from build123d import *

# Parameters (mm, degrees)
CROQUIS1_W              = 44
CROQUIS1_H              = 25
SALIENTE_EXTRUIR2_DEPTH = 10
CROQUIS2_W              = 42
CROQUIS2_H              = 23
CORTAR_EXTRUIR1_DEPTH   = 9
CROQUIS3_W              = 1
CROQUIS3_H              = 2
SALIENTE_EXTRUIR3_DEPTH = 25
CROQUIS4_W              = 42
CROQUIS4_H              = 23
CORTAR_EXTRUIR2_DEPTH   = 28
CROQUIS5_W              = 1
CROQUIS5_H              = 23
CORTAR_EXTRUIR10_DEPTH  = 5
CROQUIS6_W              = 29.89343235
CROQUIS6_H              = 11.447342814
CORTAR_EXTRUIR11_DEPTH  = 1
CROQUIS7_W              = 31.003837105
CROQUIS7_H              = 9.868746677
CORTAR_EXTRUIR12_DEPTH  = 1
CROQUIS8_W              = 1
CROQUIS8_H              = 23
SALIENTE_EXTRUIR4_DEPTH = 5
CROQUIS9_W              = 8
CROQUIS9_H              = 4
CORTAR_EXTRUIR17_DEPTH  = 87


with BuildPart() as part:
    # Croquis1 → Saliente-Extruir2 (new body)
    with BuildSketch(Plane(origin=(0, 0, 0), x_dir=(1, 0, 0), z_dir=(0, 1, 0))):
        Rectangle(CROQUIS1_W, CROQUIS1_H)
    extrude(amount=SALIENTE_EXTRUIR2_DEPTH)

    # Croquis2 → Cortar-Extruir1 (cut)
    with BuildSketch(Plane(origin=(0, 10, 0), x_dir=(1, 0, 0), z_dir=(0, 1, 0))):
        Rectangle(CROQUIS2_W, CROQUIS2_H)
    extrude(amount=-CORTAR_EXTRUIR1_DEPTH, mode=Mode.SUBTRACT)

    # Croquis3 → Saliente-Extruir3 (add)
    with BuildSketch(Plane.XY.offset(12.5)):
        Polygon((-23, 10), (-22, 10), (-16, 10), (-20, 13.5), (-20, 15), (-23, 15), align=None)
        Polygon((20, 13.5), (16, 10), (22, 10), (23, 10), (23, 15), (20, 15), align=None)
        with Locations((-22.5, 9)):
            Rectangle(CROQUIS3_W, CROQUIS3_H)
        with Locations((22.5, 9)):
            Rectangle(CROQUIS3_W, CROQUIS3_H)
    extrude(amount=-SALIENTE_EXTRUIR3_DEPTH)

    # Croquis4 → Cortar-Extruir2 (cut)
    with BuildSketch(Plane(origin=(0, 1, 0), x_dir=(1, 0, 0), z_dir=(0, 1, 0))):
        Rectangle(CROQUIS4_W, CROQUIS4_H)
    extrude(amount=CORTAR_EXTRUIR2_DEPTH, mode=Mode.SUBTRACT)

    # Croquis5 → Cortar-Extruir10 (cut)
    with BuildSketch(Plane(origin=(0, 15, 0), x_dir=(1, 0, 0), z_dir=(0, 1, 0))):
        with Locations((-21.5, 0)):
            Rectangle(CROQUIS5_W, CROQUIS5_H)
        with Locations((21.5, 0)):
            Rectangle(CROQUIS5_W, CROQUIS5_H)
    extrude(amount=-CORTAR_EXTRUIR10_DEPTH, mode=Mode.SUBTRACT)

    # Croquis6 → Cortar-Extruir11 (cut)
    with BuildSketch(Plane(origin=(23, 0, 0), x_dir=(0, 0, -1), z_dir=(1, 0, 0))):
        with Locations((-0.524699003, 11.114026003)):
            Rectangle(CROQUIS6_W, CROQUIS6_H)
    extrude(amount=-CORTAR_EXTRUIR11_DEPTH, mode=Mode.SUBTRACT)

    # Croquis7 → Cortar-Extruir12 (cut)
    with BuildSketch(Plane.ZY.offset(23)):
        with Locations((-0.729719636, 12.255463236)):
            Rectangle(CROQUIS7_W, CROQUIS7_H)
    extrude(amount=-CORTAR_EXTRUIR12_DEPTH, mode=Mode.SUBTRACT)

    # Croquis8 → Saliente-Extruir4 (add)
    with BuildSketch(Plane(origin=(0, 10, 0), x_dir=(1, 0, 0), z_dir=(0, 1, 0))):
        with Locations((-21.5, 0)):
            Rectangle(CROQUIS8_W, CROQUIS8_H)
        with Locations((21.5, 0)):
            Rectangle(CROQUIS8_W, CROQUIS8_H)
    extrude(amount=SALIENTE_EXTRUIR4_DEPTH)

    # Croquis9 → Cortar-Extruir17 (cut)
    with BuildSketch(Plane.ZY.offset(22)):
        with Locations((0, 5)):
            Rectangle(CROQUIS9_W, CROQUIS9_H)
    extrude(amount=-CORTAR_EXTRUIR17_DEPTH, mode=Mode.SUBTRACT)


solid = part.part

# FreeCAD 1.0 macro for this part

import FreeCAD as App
import Part
import Sketcher

doc = App.newDocument("Part")
body = doc.addObject("PartDesign::Body", "Body")

# Sketch on XZ plane
sketch1 = body.newObject("Sketcher::SketchObject", "Sketch")
sketch1.AttachmentSupport = (doc.getObject("XZ_Plane"), [""])
sketch1.MapMode = "FlatFace"
sketch1.addGeometry([
    Part.LineSegment(App.Vector(-22, -12, 0), App.Vector(-22, 12, 0)),
    Part.LineSegment(App.Vector(-22, 12, 0), App.Vector(22, 12, 0)),
    Part.LineSegment(App.Vector(22, 12, 0), App.Vector(22, -12, 0)),
    Part.LineSegment(App.Vector(22, -12, 0), App.Vector(-22, -12, 0)),
], False)
sketch1.addConstraint([
    Sketcher.Constraint("Coincident", 0, 2, 1, 1),
    Sketcher.Constraint("Coincident", 1, 2, 2, 1),
    Sketcher.Constraint("Coincident", 2, 2, 3, 1),
    Sketcher.Constraint("Coincident", 3, 2, 0, 1),
    Sketcher.Constraint("Vertical", 0),
    Sketcher.Constraint("Horizontal", 1),
    Sketcher.Constraint("Vertical", 2),
    Sketcher.Constraint("Horizontal", 3),
    Sketcher.Constraint("Symmetric", 0, 2, 2, 2, -1, 1),
    Sketcher.Constraint("DistanceX", 1, 1, 1, 2, 44.0),
    Sketcher.Constraint("DistanceY", 0, 1, 0, 2, 25.0),
])
pad1 = body.newObject("PartDesign::Pad", "Pad")
pad1.Profile = sketch1
pad1.Length = 10
pad1.Reversed = True

# Sketch on XZ plane
sketch2 = body.newObject("Sketcher::SketchObject", "Sketch001")
sketch2.AttachmentSupport = (doc.getObject("XZ_Plane"), [""])
sketch2.MapMode = "FlatFace"
sketch2.AttachmentOffset = App.Placement(App.Vector(0, 0, -10), App.Rotation())
sketch2.addGeometry([
    Part.LineSegment(App.Vector(-21, -12, 0), App.Vector(-21, 12, 0)),
    Part.LineSegment(App.Vector(-21, 12, 0), App.Vector(21, 12, 0)),
    Part.LineSegment(App.Vector(21, 12, 0), App.Vector(21, -12, 0)),
    Part.LineSegment(App.Vector(21, -12, 0), App.Vector(-21, -12, 0)),
], False)
sketch2.addConstraint([
    Sketcher.Constraint("Coincident", 0, 2, 1, 1),
    Sketcher.Constraint("Coincident", 1, 2, 2, 1),
    Sketcher.Constraint("Coincident", 2, 2, 3, 1),
    Sketcher.Constraint("Coincident", 3, 2, 0, 1),
    Sketcher.Constraint("Vertical", 0),
    Sketcher.Constraint("Horizontal", 1),
    Sketcher.Constraint("Vertical", 2),
    Sketcher.Constraint("Horizontal", 3),
    Sketcher.Constraint("Symmetric", 0, 2, 2, 2, -1, 1),
    Sketcher.Constraint("DistanceX", 1, 1, 1, 2, 42.0),
    Sketcher.Constraint("DistanceY", 0, 1, 0, 2, 23.0),
])
pocket1 = body.newObject("PartDesign::Pocket", "Pocket")
pocket1.Profile = sketch2
pocket1.Length = 9
pocket1.Reversed = True

# Sketch on XY plane
sketch3 = body.newObject("Sketcher::SketchObject", "Sketch002")
sketch3.AttachmentSupport = (doc.getObject("XY_Plane"), [""])
sketch3.MapMode = "FlatFace"
sketch3.AttachmentOffset = App.Placement(App.Vector(0, 0, 12.5), App.Rotation())
sketch3.addGeometry([
    Part.LineSegment(App.Vector(-22, 10, 0), App.Vector(-16, 10, 0)),  # 0
    Part.LineSegment(App.Vector(-16, 10, 0), App.Vector(-20, 13.5, 0)),  # 1
    Part.LineSegment(App.Vector(-20, 13.5, 0), App.Vector(-20, 15, 0)),  # 2
    Part.LineSegment(App.Vector(-20, 15, 0), App.Vector(-23, 15, 0)),  # 3
    Part.LineSegment(App.Vector(-23, 15, 0), App.Vector(-23, 8, 0)),  # 4
    Part.LineSegment(App.Vector(-23, 8, 0), App.Vector(-22, 8, 0)),  # 5
    Part.LineSegment(App.Vector(-22, 8, 0), App.Vector(-22, 10, 0)),  # 6
    Part.LineSegment(App.Vector(20, 13.5, 0), App.Vector(16, 10, 0)),  # 7
    Part.LineSegment(App.Vector(16, 10, 0), App.Vector(22, 10, 0)),  # 8
    Part.LineSegment(App.Vector(22, 10, 0), App.Vector(22, 8, 0)),  # 9
    Part.LineSegment(App.Vector(22, 8, 0), App.Vector(23, 8, 0)),  # 10
    Part.LineSegment(App.Vector(23, 8, 0), App.Vector(23, 15, 0)),  # 11
    Part.LineSegment(App.Vector(23, 15, 0), App.Vector(20, 15, 0)),  # 12
    Part.LineSegment(App.Vector(20, 15, 0), App.Vector(20, 13.5, 0)),  # 13
], False)
sketch3.addConstraint([
    Sketcher.Constraint("Coincident", 0, 2, 1, 1),
    Sketcher.Constraint("Coincident", 1, 2, 2, 1),
    Sketcher.Constraint("Coincident", 2, 2, 3, 1),
    Sketcher.Constraint("Coincident", 3, 2, 4, 1),
    Sketcher.Constraint("Coincident", 4, 2, 5, 1),
    Sketcher.Constraint("Coincident", 5, 2, 6, 1),
    Sketcher.Constraint("Coincident", 6, 2, 0, 1),
    Sketcher.Constraint("Coincident", 7, 2, 8, 1),
    Sketcher.Constraint("Coincident", 8, 2, 9, 1),
    Sketcher.Constraint("Coincident", 9, 2, 10, 1),
    Sketcher.Constraint("Coincident", 10, 2, 11, 1),
    Sketcher.Constraint("Coincident", 11, 2, 12, 1),
    Sketcher.Constraint("Coincident", 12, 2, 13, 1),
    Sketcher.Constraint("Coincident", 13, 2, 7, 1),
    Sketcher.Constraint("Horizontal", 0),
    Sketcher.Constraint("Vertical", 2),
    Sketcher.Constraint("Horizontal", 3),
    Sketcher.Constraint("Vertical", 4),
    Sketcher.Constraint("Horizontal", 5),
    Sketcher.Constraint("Vertical", 6),
    Sketcher.Constraint("Horizontal", 8),
    Sketcher.Constraint("Vertical", 9),
    Sketcher.Constraint("Horizontal", 10),
    Sketcher.Constraint("Vertical", 11),
    Sketcher.Constraint("Horizontal", 12),
    Sketcher.Constraint("Vertical", 13),
    Sketcher.Constraint("Symmetric", 0, 2, 7, 2, -2),
    Sketcher.Constraint("Symmetric", 5, 2, 9, 2, -2),
    Sketcher.Constraint("Symmetric", 3, 2, 11, 2, -2),
    Sketcher.Constraint("Symmetric", 1, 2, 13, 2, -2),
    Sketcher.Constraint("DistanceX", 0, 1, 0, 2, 6.0),
    Sketcher.Constraint("DistanceX", 3, 2, 3, 1, 3.0),
    Sketcher.Constraint("DistanceX", 5, 1, 5, 2, 1.0),
    Sketcher.Constraint("DistanceY", 4, 2, 4, 1, 7.0),
    Sketcher.Constraint("DistanceY", 6, 1, 6, 2, 2.0),
    Sketcher.Constraint("DistanceY", 2, 1, 2, 2, 1.5),
    Sketcher.Constraint("DistanceX", 0, 2, -1, 1, 16.0),
    Sketcher.Constraint("DistanceY", -1, 1, 0, 2, 10.0),
])
pad2 = body.newObject("PartDesign::Pad", "Pad001")
pad2.Profile = sketch3
pad2.Length = 25
pad2.Reversed = True

# Sketch on XZ plane
sketch4 = body.newObject("Sketcher::SketchObject", "Sketch003")
sketch4.AttachmentSupport = (doc.getObject("XZ_Plane"), [""])
sketch4.MapMode = "FlatFace"
sketch4.AttachmentOffset = App.Placement(App.Vector(0, 0, -1), App.Rotation())
sketch4.addGeometry([
    Part.LineSegment(App.Vector(-21, -12, 0), App.Vector(-21, 12, 0)),
    Part.LineSegment(App.Vector(-21, 12, 0), App.Vector(21, 12, 0)),
    Part.LineSegment(App.Vector(21, 12, 0), App.Vector(21, -12, 0)),
    Part.LineSegment(App.Vector(21, -12, 0), App.Vector(-21, -12, 0)),
], False)
sketch4.addConstraint([
    Sketcher.Constraint("Coincident", 0, 2, 1, 1),
    Sketcher.Constraint("Coincident", 1, 2, 2, 1),
    Sketcher.Constraint("Coincident", 2, 2, 3, 1),
    Sketcher.Constraint("Coincident", 3, 2, 0, 1),
    Sketcher.Constraint("Vertical", 0),
    Sketcher.Constraint("Horizontal", 1),
    Sketcher.Constraint("Vertical", 2),
    Sketcher.Constraint("Horizontal", 3),
    Sketcher.Constraint("Symmetric", 0, 2, 2, 2, -1, 1),
    Sketcher.Constraint("DistanceX", 1, 1, 1, 2, 42.0),
    Sketcher.Constraint("DistanceY", 0, 1, 0, 2, 23.0),
])
pocket2 = body.newObject("PartDesign::Pocket", "Pocket001")
pocket2.Profile = sketch4
pocket2.Length = 28

# Sketch on XZ plane
sketch5 = body.newObject("Sketcher::SketchObject", "Sketch004")
sketch5.AttachmentSupport = (doc.getObject("XZ_Plane"), [""])
sketch5.MapMode = "FlatFace"
sketch5.AttachmentOffset = App.Placement(App.Vector(0, 0, -15), App.Rotation())
sketch5.addGeometry([
    Part.LineSegment(App.Vector(-22, -11.5, 0), App.Vector(-22, 11.5, 0)),  # 0
    Part.LineSegment(App.Vector(-22, 11.5, 0), App.Vector(-21, 11.5, 0)),  # 1
    Part.LineSegment(App.Vector(-21, 11.5, 0), App.Vector(-21, -11.5, 0)),  # 2
    Part.LineSegment(App.Vector(-21, -11.5, 0), App.Vector(-22, -11.5, 0)),  # 3
    Part.LineSegment(App.Vector(21, -11.5, 0), App.Vector(21, 11.5, 0)),  # 4
    Part.LineSegment(App.Vector(21, 11.5, 0), App.Vector(22, 11.5, 0)),  # 5
    Part.LineSegment(App.Vector(22, 11.5, 0), App.Vector(22, -11.5, 0)),  # 6
    Part.LineSegment(App.Vector(22, -11.5, 0), App.Vector(21, -11.5, 0)),  # 7
], False)
sketch5.addConstraint([
    Sketcher.Constraint("Coincident", 0, 2, 1, 1),
    Sketcher.Constraint("Coincident", 1, 2, 2, 1),
    Sketcher.Constraint("Coincident", 2, 2, 3, 1),
    Sketcher.Constraint("Coincident", 3, 2, 0, 1),
    Sketcher.Constraint("Coincident", 4, 2, 5, 1),
    Sketcher.Constraint("Coincident", 5, 2, 6, 1),
    Sketcher.Constraint("Coincident", 6, 2, 7, 1),
    Sketcher.Constraint("Coincident", 7, 2, 4, 1),
    Sketcher.Constraint("Vertical", 0),
    Sketcher.Constraint("Horizontal", 1),
    Sketcher.Constraint("Vertical", 2),
    Sketcher.Constraint("Horizontal", 3),
    Sketcher.Constraint("Vertical", 4),
    Sketcher.Constraint("Horizontal", 5),
    Sketcher.Constraint("Vertical", 6),
    Sketcher.Constraint("Horizontal", 7),
    Sketcher.Constraint("Symmetric", 2, 2, 4, 2, -1, 1),
    Sketcher.Constraint("Symmetric", 0, 2, 6, 2, -1, 1),
    Sketcher.Constraint("Horizontal", 1, 2, 4, 2),
    Sketcher.Constraint("DistanceX", 1, 1, 1, 2, 1.0),
    Sketcher.Constraint("DistanceY", 0, 1, 0, 2, 23.0),
    Sketcher.Constraint("DistanceX", 0, 2, -1, 1, 22.0),
])
pocket3 = body.newObject("PartDesign::Pocket", "Pocket002")
pocket3.Profile = sketch5
pocket3.Length = 5
pocket3.Reversed = True

# Sketch on YZ plane
sketch6 = body.newObject("Sketcher::SketchObject", "Sketch005")
sketch6.AttachmentSupport = (doc.getObject("YZ_Plane"), [""])
sketch6.MapMode = "FlatFace"
sketch6.AttachmentOffset = App.Placement(App.Vector(0, 0, 23), App.Rotation())
sketch6.addGeometry([
    Part.LineSegment(App.Vector(17, 15, 0), App.Vector(5, 15, 0)),
    Part.LineSegment(App.Vector(5, 15, 0), App.Vector(5, -14, 0)),
    Part.LineSegment(App.Vector(5, -14, 0), App.Vector(17, -14, 0)),
    Part.LineSegment(App.Vector(17, -14, 0), App.Vector(17, 15, 0)),
], False)
sketch6.addConstraint([
    Sketcher.Constraint("Coincident", 0, 2, 1, 1),
    Sketcher.Constraint("Coincident", 1, 2, 2, 1),
    Sketcher.Constraint("Coincident", 2, 2, 3, 1),
    Sketcher.Constraint("Coincident", 3, 2, 0, 1),
    Sketcher.Constraint("Horizontal", 0),
    Sketcher.Constraint("Vertical", 1),
    Sketcher.Constraint("Horizontal", 2),
    Sketcher.Constraint("Vertical", 3),
    Sketcher.Constraint("DistanceX", 0, 2, 0, 1, 11.447343),
    Sketcher.Constraint("DistanceY", 1, 2, 1, 1, 29.893432),
    Sketcher.Constraint("DistanceX", -1, 1, 0, 2, 5.390355),
    Sketcher.Constraint("DistanceY", -1, 1, 0, 2, 15.471415),
])
pocket4 = body.newObject("PartDesign::Pocket", "Pocket003")
pocket4.Profile = sketch6
pocket4.Length = 1

# Sketch on YZ plane
sketch7 = body.newObject("Sketcher::SketchObject", "Sketch006")
sketch7.AttachmentSupport = (doc.getObject("YZ_Plane"), [""])
sketch7.MapMode = "FlatFace"
sketch7.AttachmentOffset = App.Placement(App.Vector(0, 0, -23), App.Rotation())
sketch7.addGeometry([
    Part.LineSegment(App.Vector(17, -16, 0), App.Vector(7, -16, 0)),
    Part.LineSegment(App.Vector(7, -16, 0), App.Vector(7, 15, 0)),
    Part.LineSegment(App.Vector(7, 15, 0), App.Vector(17, 15, 0)),
    Part.LineSegment(App.Vector(17, 15, 0), App.Vector(17, -16, 0)),
], False)
sketch7.addConstraint([
    Sketcher.Constraint("Coincident", 0, 2, 1, 1),
    Sketcher.Constraint("Coincident", 1, 2, 2, 1),
    Sketcher.Constraint("Coincident", 2, 2, 3, 1),
    Sketcher.Constraint("Coincident", 3, 2, 0, 1),
    Sketcher.Constraint("Horizontal", 0),
    Sketcher.Constraint("Vertical", 1),
    Sketcher.Constraint("Horizontal", 2),
    Sketcher.Constraint("Vertical", 3),
    Sketcher.Constraint("DistanceY", -1, 1, 1, 2, 14.772199),
    Sketcher.Constraint("DistanceX", 0, 2, 0, 1, 9.868747),
    Sketcher.Constraint("DistanceY", 1, 1, 1, 2, 31.003837),
    Sketcher.Constraint("DistanceX", -1, 1, 0, 2, 7.32109),
])
pocket5 = body.newObject("PartDesign::Pocket", "Pocket004")
pocket5.Profile = sketch7
pocket5.Length = 1
pocket5.Reversed = True

# Sketch on XZ plane
sketch8 = body.newObject("Sketcher::SketchObject", "Sketch007")
sketch8.AttachmentSupport = (doc.getObject("XZ_Plane"), [""])
sketch8.MapMode = "FlatFace"
sketch8.AttachmentOffset = App.Placement(App.Vector(0, 0, -10), App.Rotation())
sketch8.addGeometry([
    Part.LineSegment(App.Vector(-22, -11.5, 0), App.Vector(-22, 11.5, 0)),  # 0
    Part.LineSegment(App.Vector(-22, 11.5, 0), App.Vector(-21, 11.5, 0)),  # 1
    Part.LineSegment(App.Vector(-21, 11.5, 0), App.Vector(-21, -11.5, 0)),  # 2
    Part.LineSegment(App.Vector(-21, -11.5, 0), App.Vector(-22, -11.5, 0)),  # 3
    Part.LineSegment(App.Vector(21, -11.5, 0), App.Vector(21, 11.5, 0)),  # 4
    Part.LineSegment(App.Vector(21, 11.5, 0), App.Vector(22, 11.5, 0)),  # 5
    Part.LineSegment(App.Vector(22, 11.5, 0), App.Vector(22, -11.5, 0)),  # 6
    Part.LineSegment(App.Vector(22, -11.5, 0), App.Vector(21, -11.5, 0)),  # 7
], False)
sketch8.addConstraint([
    Sketcher.Constraint("Coincident", 0, 2, 1, 1),
    Sketcher.Constraint("Coincident", 1, 2, 2, 1),
    Sketcher.Constraint("Coincident", 2, 2, 3, 1),
    Sketcher.Constraint("Coincident", 3, 2, 0, 1),
    Sketcher.Constraint("Coincident", 4, 2, 5, 1),
    Sketcher.Constraint("Coincident", 5, 2, 6, 1),
    Sketcher.Constraint("Coincident", 6, 2, 7, 1),
    Sketcher.Constraint("Coincident", 7, 2, 4, 1),
    Sketcher.Constraint("Vertical", 0),
    Sketcher.Constraint("Horizontal", 1),
    Sketcher.Constraint("Vertical", 2),
    Sketcher.Constraint("Horizontal", 3),
    Sketcher.Constraint("Vertical", 4),
    Sketcher.Constraint("Horizontal", 5),
    Sketcher.Constraint("Vertical", 6),
    Sketcher.Constraint("Horizontal", 7),
    Sketcher.Constraint("Symmetric", 2, 2, 4, 2, -1, 1),
    Sketcher.Constraint("Symmetric", 0, 2, 6, 2, -1, 1),
    Sketcher.Constraint("Horizontal", 1, 2, 4, 2),
    Sketcher.Constraint("DistanceX", 1, 1, 1, 2, 1.0),
    Sketcher.Constraint("DistanceY", 0, 1, 0, 2, 23.0),
    Sketcher.Constraint("DistanceX", 0, 2, -1, 1, 22.0),
])
pad3 = body.newObject("PartDesign::Pad", "Pad002")
pad3.Profile = sketch8
pad3.Length = 5
pad3.Reversed = True

# Sketch on YZ plane
sketch9 = body.newObject("Sketcher::SketchObject", "Sketch008")
sketch9.AttachmentSupport = (doc.getObject("YZ_Plane"), [""])
sketch9.MapMode = "FlatFace"
sketch9.AttachmentOffset = App.Placement(App.Vector(0, 0, -22), App.Rotation())
sketch9.addGeometry([
    Part.LineSegment(App.Vector(7, -4, 0), App.Vector(3, -4, 0)),
    Part.LineSegment(App.Vector(3, -4, 0), App.Vector(3, 4, 0)),
    Part.LineSegment(App.Vector(3, 4, 0), App.Vector(7, 4, 0)),
    Part.LineSegment(App.Vector(7, 4, 0), App.Vector(7, -4, 0)),
], False)
sketch9.addConstraint([
    Sketcher.Constraint("Coincident", 0, 2, 1, 1),
    Sketcher.Constraint("Coincident", 1, 2, 2, 1),
    Sketcher.Constraint("Coincident", 2, 2, 3, 1),
    Sketcher.Constraint("Coincident", 3, 2, 0, 1),
    Sketcher.Constraint("Horizontal", 0),
    Sketcher.Constraint("Vertical", 1),
    Sketcher.Constraint("Horizontal", 2),
    Sketcher.Constraint("Vertical", 3),
    Sketcher.Constraint("DistanceX", 0, 2, 0, 1, 4.0),
    Sketcher.Constraint("DistanceY", 1, 1, 1, 2, 8.0),
    Sketcher.Constraint("DistanceX", -1, 1, 0, 2, 3.0),
    Sketcher.Constraint("DistanceY", 0, 2, -1, 1, 4.0),
])
pocket6 = body.newObject("PartDesign::Pocket", "Pocket005")
pocket6.Profile = sketch9
pocket6.Length = 87
pocket6.Reversed = True

doc.recompute()
